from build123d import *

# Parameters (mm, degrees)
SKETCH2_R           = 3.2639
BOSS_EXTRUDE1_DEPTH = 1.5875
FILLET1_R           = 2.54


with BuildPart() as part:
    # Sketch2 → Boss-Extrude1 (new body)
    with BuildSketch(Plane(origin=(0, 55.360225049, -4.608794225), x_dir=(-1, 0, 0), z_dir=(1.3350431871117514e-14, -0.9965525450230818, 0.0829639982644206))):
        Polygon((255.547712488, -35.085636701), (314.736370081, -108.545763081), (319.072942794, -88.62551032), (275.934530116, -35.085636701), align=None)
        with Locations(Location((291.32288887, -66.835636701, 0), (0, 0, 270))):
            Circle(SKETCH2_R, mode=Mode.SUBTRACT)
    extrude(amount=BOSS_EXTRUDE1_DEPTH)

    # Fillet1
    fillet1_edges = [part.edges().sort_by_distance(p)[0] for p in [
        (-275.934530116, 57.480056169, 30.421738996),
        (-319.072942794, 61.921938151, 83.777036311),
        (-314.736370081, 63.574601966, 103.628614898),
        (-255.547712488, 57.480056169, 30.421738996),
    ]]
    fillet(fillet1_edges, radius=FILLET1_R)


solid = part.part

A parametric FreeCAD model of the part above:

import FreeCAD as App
import Part
import Sketcher

V = App.Vector
Q = App.Units.Quantity


def edges_at(feature, points):
    """Names of the edges that pass closest to the given points."""
    edges = feature.Shape.Edges
    near = lambda p: min(range(len(edges)), key=lambda i: edges[i].distToShape(Part.Vertex(*p))[0])
    return sorted({f"Edge{near(p) + 1}" for p in points})

doc = App.newDocument("Part")
params = doc.addObject("Spreadsheet::Sheet", "Params")
for row, (alias, value) in enumerate([
    ("sketch1_diameter", "0.257 in"),
    ("pad1_length", "0.0625 in"),
    ("fillet_radius", "0.1 in"),
], start=1):
    params.set(f"A{row}", alias)
    params.set(f"B{row}", "=" + value)
    params.setAlias(f"B{row}", alias)

body = doc.addObject("PartDesign::Body", "Body")

sketch1 = doc.addObject("Sketcher::SketchObject", "Sketch")
body.addObject(sketch1)
sketch1.Placement = App.Placement(V(0, 55.360225, -4.608794), App.Rotation(V(-1, 0, 0), V(0, -0.082963998, -0.996552545), V(0, -0.996552545, 0.082963998), "ZXY"))
sketch1.addGeometry(Part.LineSegment(V(255.5, -35.1, 0), V(314.7, -108.5, 0)), False)
sketch1.addGeometry(Part.LineSegment(V(314.7, -108.5, 0), V(319.1, -88.6, 0)), False)
sketch1.addGeometry(Part.LineSegment(V(319.1, -88.6, 0), V(275.9, -35.1, 0)), False)
sketch1.addGeometry(Part.LineSegment(V(275.9, -35.1, 0), V(255.5, -35.1, 0)), False)
sketch1.addGeometry(Part.Circle(V(291.3, -66.8, 0), V(0, 0, 1), 3.3), False)
sketch1.addConstraint(Sketcher.Constraint("Coincident", 0, 2, 1, 1))
sketch1.addConstraint(Sketcher.Constraint("Coincident", 1, 2, 2, 1))
sketch1.addConstraint(Sketcher.Constraint("Coincident", 2, 2, 3, 1))
sketch1.addConstraint(Sketcher.Constraint("Coincident", 3, 2, 0, 1))
sketch1.addConstraint(Sketcher.Constraint("Horizontal", 3))
sketch1.addConstraint(Sketcher.Constraint("Parallel", 0, 2))
sketch1.addConstraint(Sketcher.Constraint("Diameter", 4, Q("0.257 in")))
sketch1.addConstraint(Sketcher.Constraint("DistanceY", 4, 3, 2, 2, Q("1.25 in")))
sketch1.addConstraint(Sketcher.Constraint("DistanceX", 3, 2, 3, 1, Q("20.386818 mm")))
sketch1.addConstraint(Sketcher.Constraint("DistanceX", -1, 1, 4, 3, Q("291.322889 mm")))
sketch1.addConstraint(Sketcher.Constraint("DistanceX", -1, 1, 0, 2, Q("314.73637 mm")))
sketch1.addConstraint(Sketcher.Constraint("DistanceY", 1, 2, -1, 1, Q("88.62551 mm")))
sketch1.addConstraint(Sketcher.Constraint("DistanceX", -1, 1, 2, 2, Q("275.93453 mm")))
sketch1.addConstraint(Sketcher.Constraint("DistanceX", 3, 2, 1, 2, Q("63.52523 mm")))
sketch1.addConstraint(Sketcher.Constraint("Distance", 0, Q("94.338154 mm")))
sketch1.setExpression("Constraints[6]", "Params.sketch1_diameter")
pad1 = doc.addObject("PartDesign::Pad", "Pad")
body.addObject(pad1)
pad1.Profile = sketch1
pad1.setExpression("Length", "Params.pad1_length")
doc.recompute()

fillet = doc.addObject("PartDesign::Fillet", "Fillet")
body.addObject(fillet)
fillet.Base = (pad1, edges_at(pad1, [
    (-275.935, 57.48, 30.422),
    (-319.073, 61.922, 83.777),
    (-314.736, 63.575, 103.629),
    (-255.548, 57.48, 30.422),
]))
fillet.setExpression("Radius", "Params.fillet_radius")

doc.recompute()
